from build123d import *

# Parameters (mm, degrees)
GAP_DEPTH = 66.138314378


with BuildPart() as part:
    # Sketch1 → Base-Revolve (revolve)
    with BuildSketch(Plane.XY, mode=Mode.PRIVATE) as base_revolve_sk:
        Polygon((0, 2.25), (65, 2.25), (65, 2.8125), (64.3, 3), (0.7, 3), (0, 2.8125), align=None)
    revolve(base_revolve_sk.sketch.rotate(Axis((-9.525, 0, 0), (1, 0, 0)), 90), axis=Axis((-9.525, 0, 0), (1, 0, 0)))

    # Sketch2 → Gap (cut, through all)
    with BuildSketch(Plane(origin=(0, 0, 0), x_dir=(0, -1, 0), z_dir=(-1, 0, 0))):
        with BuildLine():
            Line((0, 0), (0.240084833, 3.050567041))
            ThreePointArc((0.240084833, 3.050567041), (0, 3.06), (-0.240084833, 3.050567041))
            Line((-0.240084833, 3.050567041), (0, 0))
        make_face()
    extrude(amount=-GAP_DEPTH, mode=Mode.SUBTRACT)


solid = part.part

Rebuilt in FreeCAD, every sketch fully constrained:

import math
import FreeCAD as App
import Part
import Sketcher
Q = App.Units.Quantity


def add_polygon(sketch, points):
    """Adds a closed chain of lines whose ends are joined by coincident constraints."""
    first, n = sketch.GeometryCount, len(points)
    for a, b in zip(points, points[1:] + points[:1]):
        sketch.addGeometry(Part.LineSegment(App.Vector(*a, 0), App.Vector(*b, 0)), False)
    for i in range(n):
        sketch.addConstraint(Sketcher.Constraint("Coincident", first + i, 2, first + (i + 1) % n, 1))

doc = App.newDocument("Part")
body = doc.addObject("PartDesign::Body", "Body")

# Sketch on XY plane
sketch1 = body.newObject("Sketcher::SketchObject", "Sketch")
sketch1.AttachmentSupport = (doc.getObject("XY_Plane"), [""])
sketch1.MapMode = "FlatFace"
add_polygon(sketch1, [(0, 2.2), (65, 2.2), (65, 2.8), (64.3, 3), (0.7, 3), (0, 2.8)])  # lines 0-5
sketch1.addConstraint([
    Sketcher.Constraint("Horizontal", 0),
    Sketcher.Constraint("Vertical", 1),
    Sketcher.Constraint("Horizontal", 3),
    Sketcher.Constraint("Vertical", 5),
    Sketcher.Constraint("PointOnObject", 4, 2, -2),
    Sketcher.Constraint("Horizontal", 1, 2, 4, 2),
    Sketcher.Constraint("Equal", 2, 4),
    Sketcher.Constraint("DistanceX", 0, 1, 0, 2, Q("65 mm")),
    Sketcher.Constraint("DistanceX", 3, 2, 3, 1, Q("63.6 mm")),
    Sketcher.Constraint("DistanceY", -1, 1, 2, 2, Q("3 mm")),
    Sketcher.Constraint("DistanceY", -1, 1, 0, 2, Q("2.25 mm")),
    Sketcher.Constraint("DistanceY", 1, 1, 1, 2, Q("0.5625 mm")),
])
revolution = body.newObject("PartDesign::Revolution", "Revolution")
revolution.Profile = sketch1
revolution.ReferenceAxis = (sketch1, ["H_Axis"])
revolution.Angle = 360

# Sketch on YZ plane
sketch2 = body.newObject("Sketcher::SketchObject", "Sketch001")
sketch2.AttachmentSupport = (doc.getObject("YZ_Plane"), [""])
sketch2.MapMode = "FlatFace"
sketch2.addGeometry([
    Part.LineSegment(App.Vector(0, 0, 0), App.Vector(-0.24, 3.05, 0)),
    Part.ArcOfCircle(Part.Circle(App.Vector(0, 0, 0), App.Vector(0, 0, 1), 3.06), math.radians(85.5), math.radians(94.5)),
    Part.LineSegment(App.Vector(0.24, 3.05, 0), App.Vector(0, 0, 0)),
], False)
sketch2.addConstraint([
    Sketcher.Constraint("Coincident", 0, 2, 1, 2),
    Sketcher.Constraint("Coincident", 1, 1, 2, 1),
    Sketcher.Constraint("Coincident", 2, 2, 0, 1),
    Sketcher.Constraint("Coincident", 1, 3, -1, 1),
    Sketcher.Constraint("Coincident", 2, 2, -1, 1),
    Sketcher.Constraint("Horizontal", 0, 2, 1, 1),
    Sketcher.Constraint("Radius", 1, Q("3.06 mm")),
    Sketcher.Constraint("Angle", 0, Q("94.5 deg")),
])
pocket1 = body.newObject("PartDesign::Pocket", "Pocket")
pocket1.Profile = sketch2
pocket1.Type = "ThroughAll"
pocket1.Reversed = True

doc.recompute()
